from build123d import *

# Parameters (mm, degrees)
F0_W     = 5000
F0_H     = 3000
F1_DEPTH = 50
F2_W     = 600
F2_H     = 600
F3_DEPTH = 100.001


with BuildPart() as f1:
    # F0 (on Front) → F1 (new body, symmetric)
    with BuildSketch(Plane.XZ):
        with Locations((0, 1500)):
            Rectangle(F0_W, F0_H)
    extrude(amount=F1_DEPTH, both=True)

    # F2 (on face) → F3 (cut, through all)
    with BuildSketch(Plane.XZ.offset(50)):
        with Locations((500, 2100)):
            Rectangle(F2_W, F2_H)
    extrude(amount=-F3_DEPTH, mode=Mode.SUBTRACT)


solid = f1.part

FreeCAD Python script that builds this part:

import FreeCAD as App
import Part
import Sketcher

doc = App.newDocument("Part")
params = doc.addObject("Spreadsheet::Sheet", "Params")
for row, (alias, value) in enumerate([
    ("sketch1_width", "5000 mm"),
    ("sketch1_height", "3000 mm"),
    ("pad1_length", "100 mm"),
    ("sketch2_width", "600 mm"),
], start=1):
    params.set(f"A{row}", alias)
    params.set(f"B{row}", "=" + value)
    params.setAlias(f"B{row}", alias)

body = doc.addObject("PartDesign::Body", "Body")

# Sketch on XZ plane
sketch1 = doc.addObject("Sketcher::SketchObject", "Sketch")
body.addObject(sketch1)
sketch1.AttachmentSupport = (doc.XZ_Plane, [""])
sketch1.MapMode = "FlatFace"
sketch1.addGeometry(Part.LineSegment(App.Vector(-2500, 3000, 0), App.Vector(-2500, 0, 0)), False)
sketch1.addGeometry(Part.LineSegment(App.Vector(-2500, 0, 0), App.Vector(2500, 0, 0)), False)
sketch1.addGeometry(Part.LineSegment(App.Vector(2500, 0, 0), App.Vector(2500, 3000, 0)), False)
sketch1.addGeometry(Part.LineSegment(App.Vector(2500, 3000, 0), App.Vector(-2500, 3000, 0)), False)
sketch1.addConstraint(Sketcher.Constraint("Coincident", 0, 2, 1, 1))
sketch1.addConstraint(Sketcher.Constraint("Coincident", 1, 2, 2, 1))
sketch1.addConstraint(Sketcher.Constraint("Coincident", 2, 2, 3, 1))
sketch1.addConstraint(Sketcher.Constraint("Coincident", 3, 2, 0, 1))
sketch1.addConstraint(Sketcher.Constraint("Vertical", 0))
sketch1.addConstraint(Sketcher.Constraint("Horizontal", 1))
sketch1.addConstraint(Sketcher.Constraint("Vertical", 2))
sketch1.addConstraint(Sketcher.Constraint("Horizontal", 3))
sketch1.addConstraint(Sketcher.Constraint("Symmetric", 0, 2, 1, 2, -1, 1))
sketch1.addConstraint(Sketcher.Constraint("DistanceX", 1, 1, 1, 2, 5000.0))
sketch1.addConstraint(Sketcher.Constraint("DistanceY", 0, 2, 0, 1, 3000.0))
sketch1.setExpression("Constraints[9]", "Params.sketch1_width")
sketch1.setExpression("Constraints[10]", "Params.sketch1_height")
pad1 = doc.addObject("PartDesign::Pad", "Pad")
body.addObject(pad1)
pad1.Profile = sketch1
pad1.setExpression("Length", "Params.pad1_length")
pad1.Midplane = True

# Sketch on XZ plane
sketch2 = doc.addObject("Sketcher::SketchObject", "Sketch001")
body.addObject(sketch2)
sketch2.AttachmentSupport = (doc.XZ_Plane, [""])
sketch2.MapMode = "FlatFace"
sketch2.AttachmentOffset = App.Placement(App.Vector(0, 0, 50), App.Rotation())
sketch2.addGeometry(Part.LineSegment(App.Vector(200, 2400, 0), App.Vector(200, 1800, 0)), False)
sketch2.addGeometry(Part.LineSegment(App.Vector(200, 1800, 0), App.Vector(800, 1800, 0)), False)
sketch2.addGeometry(Part.LineSegment(App.Vector(800, 1800, 0), App.Vector(800, 2400, 0)), False)
sketch2.addGeometry(Part.LineSegment(App.Vector(800, 2400, 0), App.Vector(200, 2400, 0)), False)
sketch2.addConstraint(Sketcher.Constraint("Coincident", 0, 2, 1, 1))
sketch2.addConstraint(Sketcher.Constraint("Coincident", 1, 2, 2, 1))
sketch2.addConstraint(Sketcher.Constraint("Coincident", 2, 2, 3, 1))
sketch2.addConstraint(Sketcher.Constraint("Coincident", 3, 2, 0, 1))
sketch2.addConstraint(Sketcher.Constraint("Vertical", 0))
sketch2.addConstraint(Sketcher.Constraint("Horizontal", 1))
sketch2.addConstraint(Sketcher.Constraint("Vertical", 2))
sketch2.addConstraint(Sketcher.Constraint("Horizontal", 3))
sketch2.addConstraint(Sketcher.Constraint("Equal", 3, 0))
sketch2.addConstraint(Sketcher.Constraint("DistanceX", 1, 1, 1, 2, 600.0))
sketch2.addConstraint(Sketcher.Constraint("DistanceX", -1, 1, 0, 2, 200.0))
sketch2.addConstraint(Sketcher.Constraint("DistanceY", -1, 1, 0, 2, 1800.0))
sketch2.setExpression("Constraints[9]", "Params.sketch2_width")
pocket1 = doc.addObject("PartDesign::Pocket", "Pocket")
body.addObject(pocket1)
pocket1.Profile = sketch2
pocket1.Type = "ThroughAll"

doc.recompute()
